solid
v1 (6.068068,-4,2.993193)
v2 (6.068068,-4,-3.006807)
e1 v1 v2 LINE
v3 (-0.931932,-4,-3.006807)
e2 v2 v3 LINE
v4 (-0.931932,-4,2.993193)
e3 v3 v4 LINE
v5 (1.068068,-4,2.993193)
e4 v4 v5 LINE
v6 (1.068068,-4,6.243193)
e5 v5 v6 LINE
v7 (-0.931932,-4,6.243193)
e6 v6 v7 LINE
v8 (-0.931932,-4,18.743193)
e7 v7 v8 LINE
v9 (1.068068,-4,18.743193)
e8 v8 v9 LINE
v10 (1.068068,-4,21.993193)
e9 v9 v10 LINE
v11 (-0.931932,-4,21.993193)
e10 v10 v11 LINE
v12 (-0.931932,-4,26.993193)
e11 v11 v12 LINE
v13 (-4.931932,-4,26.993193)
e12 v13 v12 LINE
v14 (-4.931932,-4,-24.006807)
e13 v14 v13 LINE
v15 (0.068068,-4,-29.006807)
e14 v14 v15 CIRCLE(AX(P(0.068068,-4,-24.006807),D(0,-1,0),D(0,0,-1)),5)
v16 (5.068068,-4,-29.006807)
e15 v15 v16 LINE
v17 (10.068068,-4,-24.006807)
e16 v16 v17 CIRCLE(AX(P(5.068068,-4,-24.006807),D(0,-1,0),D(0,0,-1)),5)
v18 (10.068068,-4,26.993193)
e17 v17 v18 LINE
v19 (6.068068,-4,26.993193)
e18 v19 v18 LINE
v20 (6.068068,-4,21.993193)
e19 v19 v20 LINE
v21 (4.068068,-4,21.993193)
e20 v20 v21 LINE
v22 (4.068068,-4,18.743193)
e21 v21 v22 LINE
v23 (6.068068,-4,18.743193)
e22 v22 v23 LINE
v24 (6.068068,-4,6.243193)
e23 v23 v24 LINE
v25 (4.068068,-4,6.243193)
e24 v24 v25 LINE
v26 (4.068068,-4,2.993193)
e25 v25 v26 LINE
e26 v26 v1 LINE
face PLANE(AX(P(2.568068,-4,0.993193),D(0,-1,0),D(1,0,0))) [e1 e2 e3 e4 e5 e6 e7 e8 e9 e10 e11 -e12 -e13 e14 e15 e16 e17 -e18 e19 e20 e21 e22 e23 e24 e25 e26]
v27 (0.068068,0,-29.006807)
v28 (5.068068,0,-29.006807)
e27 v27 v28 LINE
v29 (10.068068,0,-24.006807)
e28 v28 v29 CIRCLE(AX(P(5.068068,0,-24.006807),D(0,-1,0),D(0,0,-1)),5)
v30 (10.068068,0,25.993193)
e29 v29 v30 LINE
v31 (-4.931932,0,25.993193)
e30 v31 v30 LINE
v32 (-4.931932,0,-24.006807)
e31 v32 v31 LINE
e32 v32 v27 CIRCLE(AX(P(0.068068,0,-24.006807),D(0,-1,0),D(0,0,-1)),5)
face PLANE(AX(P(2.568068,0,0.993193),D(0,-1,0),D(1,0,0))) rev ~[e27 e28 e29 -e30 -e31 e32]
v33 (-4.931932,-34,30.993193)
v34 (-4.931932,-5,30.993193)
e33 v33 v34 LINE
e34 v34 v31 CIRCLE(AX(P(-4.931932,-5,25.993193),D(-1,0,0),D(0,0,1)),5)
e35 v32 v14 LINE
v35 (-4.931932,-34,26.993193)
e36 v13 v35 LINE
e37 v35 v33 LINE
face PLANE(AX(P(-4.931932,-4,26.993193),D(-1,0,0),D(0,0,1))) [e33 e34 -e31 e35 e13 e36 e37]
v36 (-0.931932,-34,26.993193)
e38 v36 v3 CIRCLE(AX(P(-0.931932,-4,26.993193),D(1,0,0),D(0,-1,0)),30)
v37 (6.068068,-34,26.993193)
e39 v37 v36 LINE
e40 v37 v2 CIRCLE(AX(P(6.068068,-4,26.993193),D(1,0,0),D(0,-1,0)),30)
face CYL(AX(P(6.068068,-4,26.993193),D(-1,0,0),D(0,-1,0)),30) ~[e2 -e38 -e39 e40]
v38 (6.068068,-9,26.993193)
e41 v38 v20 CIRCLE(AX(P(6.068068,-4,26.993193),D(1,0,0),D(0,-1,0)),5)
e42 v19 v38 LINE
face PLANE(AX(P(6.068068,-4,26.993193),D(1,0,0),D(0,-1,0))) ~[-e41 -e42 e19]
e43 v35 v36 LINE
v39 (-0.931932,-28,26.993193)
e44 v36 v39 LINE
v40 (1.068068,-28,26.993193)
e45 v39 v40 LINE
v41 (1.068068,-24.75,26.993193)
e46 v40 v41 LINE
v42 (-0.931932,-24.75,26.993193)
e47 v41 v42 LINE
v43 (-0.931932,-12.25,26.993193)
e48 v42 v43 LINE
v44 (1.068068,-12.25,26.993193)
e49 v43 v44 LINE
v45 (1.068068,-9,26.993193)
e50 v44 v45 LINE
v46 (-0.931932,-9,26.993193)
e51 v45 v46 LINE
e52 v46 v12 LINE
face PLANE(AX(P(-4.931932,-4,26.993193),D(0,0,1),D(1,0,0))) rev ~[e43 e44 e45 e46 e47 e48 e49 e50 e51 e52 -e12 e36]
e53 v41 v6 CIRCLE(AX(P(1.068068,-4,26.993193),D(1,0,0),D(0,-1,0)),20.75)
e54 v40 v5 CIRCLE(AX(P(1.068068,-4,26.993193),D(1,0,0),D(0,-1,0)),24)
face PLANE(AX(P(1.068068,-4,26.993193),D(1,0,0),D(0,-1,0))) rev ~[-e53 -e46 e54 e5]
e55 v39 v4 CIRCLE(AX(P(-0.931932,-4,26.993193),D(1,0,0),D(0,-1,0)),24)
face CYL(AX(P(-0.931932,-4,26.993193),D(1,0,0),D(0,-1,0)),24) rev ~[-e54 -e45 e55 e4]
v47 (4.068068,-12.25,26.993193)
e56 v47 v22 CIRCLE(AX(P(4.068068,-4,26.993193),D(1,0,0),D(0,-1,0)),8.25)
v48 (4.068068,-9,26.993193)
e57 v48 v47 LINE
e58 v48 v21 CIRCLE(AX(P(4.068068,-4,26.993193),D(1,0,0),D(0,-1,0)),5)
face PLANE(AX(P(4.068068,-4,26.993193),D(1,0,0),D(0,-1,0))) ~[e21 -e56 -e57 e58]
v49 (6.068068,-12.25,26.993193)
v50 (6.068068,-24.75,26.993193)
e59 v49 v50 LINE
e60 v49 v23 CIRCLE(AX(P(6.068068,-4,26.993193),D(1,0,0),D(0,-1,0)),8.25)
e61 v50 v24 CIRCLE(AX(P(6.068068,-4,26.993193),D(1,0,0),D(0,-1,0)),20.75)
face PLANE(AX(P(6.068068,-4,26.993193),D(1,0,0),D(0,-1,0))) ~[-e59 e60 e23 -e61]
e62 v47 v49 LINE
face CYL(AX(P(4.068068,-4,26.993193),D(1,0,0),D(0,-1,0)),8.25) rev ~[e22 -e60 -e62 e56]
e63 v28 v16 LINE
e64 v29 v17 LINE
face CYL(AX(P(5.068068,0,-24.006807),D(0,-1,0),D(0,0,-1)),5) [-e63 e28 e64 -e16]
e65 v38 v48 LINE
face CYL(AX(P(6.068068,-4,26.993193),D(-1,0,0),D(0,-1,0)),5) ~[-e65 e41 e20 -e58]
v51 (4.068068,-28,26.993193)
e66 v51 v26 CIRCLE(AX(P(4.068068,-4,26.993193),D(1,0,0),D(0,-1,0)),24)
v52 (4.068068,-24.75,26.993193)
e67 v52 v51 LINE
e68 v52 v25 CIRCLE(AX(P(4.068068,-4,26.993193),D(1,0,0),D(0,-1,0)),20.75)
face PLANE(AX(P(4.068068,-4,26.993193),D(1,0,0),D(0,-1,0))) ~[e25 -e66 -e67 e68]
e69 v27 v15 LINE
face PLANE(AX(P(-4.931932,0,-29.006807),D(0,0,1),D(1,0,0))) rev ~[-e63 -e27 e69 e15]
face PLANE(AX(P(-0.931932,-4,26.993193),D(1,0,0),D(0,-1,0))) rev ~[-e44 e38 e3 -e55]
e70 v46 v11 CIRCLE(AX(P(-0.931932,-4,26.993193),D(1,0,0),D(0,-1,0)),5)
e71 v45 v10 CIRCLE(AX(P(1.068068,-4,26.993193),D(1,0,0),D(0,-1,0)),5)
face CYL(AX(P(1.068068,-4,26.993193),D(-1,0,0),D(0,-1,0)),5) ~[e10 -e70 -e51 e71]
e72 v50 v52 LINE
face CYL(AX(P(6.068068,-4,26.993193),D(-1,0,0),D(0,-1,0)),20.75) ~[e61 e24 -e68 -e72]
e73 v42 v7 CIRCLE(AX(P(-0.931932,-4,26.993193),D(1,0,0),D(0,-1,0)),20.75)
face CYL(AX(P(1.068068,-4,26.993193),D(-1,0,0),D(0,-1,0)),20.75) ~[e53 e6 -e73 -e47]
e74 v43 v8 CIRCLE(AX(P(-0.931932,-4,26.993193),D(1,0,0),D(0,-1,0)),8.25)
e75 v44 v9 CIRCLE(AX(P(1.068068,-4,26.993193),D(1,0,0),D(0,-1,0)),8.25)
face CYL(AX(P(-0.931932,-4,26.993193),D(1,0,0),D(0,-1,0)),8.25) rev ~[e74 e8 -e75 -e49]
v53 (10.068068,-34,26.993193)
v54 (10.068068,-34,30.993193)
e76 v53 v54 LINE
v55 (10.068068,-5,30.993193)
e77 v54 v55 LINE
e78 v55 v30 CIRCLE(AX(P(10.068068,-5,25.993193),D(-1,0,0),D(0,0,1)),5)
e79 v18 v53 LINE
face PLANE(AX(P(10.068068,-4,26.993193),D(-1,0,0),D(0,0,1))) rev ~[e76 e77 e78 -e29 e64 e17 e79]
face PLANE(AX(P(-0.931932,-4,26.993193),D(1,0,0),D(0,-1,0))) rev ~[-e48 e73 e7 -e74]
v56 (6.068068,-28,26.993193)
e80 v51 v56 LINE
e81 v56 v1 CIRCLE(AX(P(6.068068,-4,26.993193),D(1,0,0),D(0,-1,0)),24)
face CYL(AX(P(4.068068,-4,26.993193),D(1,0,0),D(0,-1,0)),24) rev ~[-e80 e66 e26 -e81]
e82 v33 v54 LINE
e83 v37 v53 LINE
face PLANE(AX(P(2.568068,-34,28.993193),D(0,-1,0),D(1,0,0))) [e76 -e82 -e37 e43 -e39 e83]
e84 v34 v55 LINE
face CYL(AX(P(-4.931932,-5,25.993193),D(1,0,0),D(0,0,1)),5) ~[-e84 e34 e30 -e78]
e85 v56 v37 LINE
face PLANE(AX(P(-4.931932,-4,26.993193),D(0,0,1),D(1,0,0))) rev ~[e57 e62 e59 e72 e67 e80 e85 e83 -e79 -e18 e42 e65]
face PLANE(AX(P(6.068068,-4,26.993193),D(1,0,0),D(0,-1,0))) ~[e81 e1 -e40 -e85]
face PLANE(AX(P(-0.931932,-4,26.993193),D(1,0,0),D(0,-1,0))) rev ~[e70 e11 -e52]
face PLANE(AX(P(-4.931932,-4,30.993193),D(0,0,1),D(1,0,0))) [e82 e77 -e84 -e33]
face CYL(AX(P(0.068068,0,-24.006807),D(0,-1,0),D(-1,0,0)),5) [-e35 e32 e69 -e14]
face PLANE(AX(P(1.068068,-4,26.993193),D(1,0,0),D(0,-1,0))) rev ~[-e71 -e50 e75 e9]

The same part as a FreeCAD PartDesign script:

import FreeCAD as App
import Part
import Sketcher


def edges_at(feature, points):
    """Names of the edges that pass closest to the given points."""
    edges = feature.Shape.Edges
    near = lambda p: min(range(len(edges)), key=lambda i: edges[i].distToShape(Part.Vertex(*p))[0])
    return sorted({f"Edge{near(p) + 1}" for p in points})


def add_polygon(sketch, points):
    """Adds a closed chain of lines whose ends are joined by coincident constraints."""
    first, n = sketch.GeometryCount, len(points)
    for a, b in zip(points, points[1:] + points[:1]):
        sketch.addGeometry(Part.LineSegment(App.Vector(*a, 0), App.Vector(*b, 0)), False)
    for i in range(n):
        sketch.addConstraint(Sketcher.Constraint("Coincident", first + i, 2, first + (i + 1) % n, 1))

doc = App.newDocument("Part")
body = doc.addObject("PartDesign::Body", "Body")

sketch1 = body.newObject("Sketcher::SketchObject", "Sketch")
sketch1.AttachmentSupport = (doc.getObject("XZ_Plane"), [""])
sketch1.MapMode = "FlatFace"
add_polygon(sketch1, [(-5, 31), (-5, -29), (10, -29), (10, 31)])
sketch1.addConstraint([
    Sketcher.Constraint("Vertical", 0),
    Sketcher.Constraint("Horizontal", 1),
    Sketcher.Constraint("Vertical", 2),
    Sketcher.Constraint("Horizontal", 3),
    Sketcher.Constraint("DistanceX", 1, 1, 1, 2, 15.0),
    Sketcher.Constraint("DistanceY", 0, 2, 0, 1, 60.0),
    Sketcher.Constraint("DistanceX", 0, 2, -1, 1, 4.931932),
    Sketcher.Constraint("DistanceY", 0, 2, -1, 1, 29.006807),
])
pad1 = body.newObject("PartDesign::Pad", "Pad")
pad1.Profile = sketch1
pad1.Length = 4

sketch2 = body.newObject("Sketcher::SketchObject", "Sketch001")
sketch2.AttachmentSupport = (doc.getObject("XZ_Plane"), [""])
sketch2.MapMode = "FlatFace"
sketch2.AttachmentOffset = App.Placement(App.Vector(0, 0, 4), App.Rotation())
add_polygon(sketch2, [(-4.9, 31), (-4.9, 27), (10.1, 27), (10.1, 31)])
sketch2.addConstraint([
    Sketcher.Constraint("Vertical", 0),
    Sketcher.Constraint("Horizontal", 1),
    Sketcher.Constraint("Vertical", 2),
    Sketcher.Constraint("Horizontal", 3),
    Sketcher.Constraint("DistanceX", 1, 1, 1, 2, 15.0),
    Sketcher.Constraint("DistanceY", 0, 2, 0, 1, 4.0),
    Sketcher.Constraint("DistanceX", 0, 2, -1, 1, 4.931932),
    Sketcher.Constraint("DistanceY", -1, 1, 0, 2, 26.993193),
])
pad2 = body.newObject("PartDesign::Pad", "Pad001")
pad2.Profile = sketch2
pad2.Length = 30

sketch3 = body.newObject("Sketcher::SketchObject", "Sketch002")
sketch3.AttachmentSupport = (doc.getObject("XY_Plane"), [""])
sketch3.MapMode = "FlatFace"
sketch3.AttachmentOffset = App.Placement(App.Vector(0, 0, 26.993193), App.Rotation())
add_polygon(sketch3, [(6.1, -28), (6.1, -34), (-0.9, -34), (-0.9, -28), (1.1, -28), (1.1, -24.8), (-0.9, -24.8), (-0.9, -12.2), (1.1, -12.2), (1.1, -9), (-0.9, -9), (-0.9, -4), (6.1, -4), (6.1, -9), (4.1, -9), (4.1, -12.2), (6.1, -12.2), (6.1, -24.8), (4.1, -24.8), (4.1, -28)])
sketch3.addGeometry(Part.LineSegment(App.Vector(6.1, -4, 0), App.Vector(-0.9, -4, 0)), True)
sketch3.addConstraint([
    Sketcher.Constraint("Vertical", 0),
    Sketcher.Constraint("Horizontal", 1),
    Sketcher.Constraint("Vertical", 2),
    Sketcher.Constraint("Horizontal", 3),
    Sketcher.Constraint("Vertical", 4),
    Sketcher.Constraint("Horizontal", 5),
    Sketcher.Constraint("Vertical", 6),
    Sketcher.Constraint("Horizontal", 7),
    Sketcher.Constraint("Vertical", 8),
    Sketcher.Constraint("Horizontal", 9),
    Sketcher.Constraint("Vertical", 10),
    Sketcher.Constraint("Horizontal", 11),
    Sketcher.Constraint("Vertical", 12),
    Sketcher.Constraint("Horizontal", 13),
    Sketcher.Constraint("Vertical", 14),
    Sketcher.Constraint("Horizontal", 15),
    Sketcher.Constraint("Vertical", 16),
    Sketcher.Constraint("Horizontal", 17),
    Sketcher.Constraint("Vertical", 18),
    Sketcher.Constraint("Horizontal", 19),
    Sketcher.Constraint("Horizontal", 20),
    Sketcher.Constraint("Coincident", 20, 1, 11, 2),
    Sketcher.Constraint("Horizontal", 9, 2, 12, 2),
    Sketcher.Constraint("Horizontal", 7, 2, 14, 2),
    Sketcher.Constraint("Horizontal", 5, 2, 16, 2),
    Sketcher.Constraint("Horizontal", 3, 2, 18, 2),
    Sketcher.Constraint("Vertical", 2, 2, 5, 2),
    Sketcher.Constraint("Vertical", 4, 2, 7, 2),
    Sketcher.Constraint("Vertical", 6, 2, 9, 2),
    Sketcher.Constraint("Vertical", 0, 2, 11, 2),
    Sketcher.Constraint("Vertical", 12, 2, 15, 2),
    Sketcher.Constraint("Vertical", 14, 2, 17, 2),
    Sketcher.Constraint("Vertical", 9, 2, 20, 2),
    Sketcher.Constraint("Equal", 9, 13),
    Sketcher.Constraint("Equal", 4, 8),
    Sketcher.Constraint("DistanceX", 1, 2, 1, 1, 7.0),
    Sketcher.Constraint("DistanceX", 3, 1, 3, 2, 2.0),
    Sketcher.Constraint("DistanceY", 0, 2, 0, 1, 6.0),
    Sketcher.Constraint("DistanceY", 10, 1, 10, 2, 5.0),
    Sketcher.Constraint("DistanceY", 6, 1, 6, 2, 12.5),
    Sketcher.Constraint("DistanceY", 0, 2, -1, 1, 34.0),
    Sketcher.Constraint("DistanceY", 8, 2, -1, 1, 9.0),
    Sketcher.Constraint("DistanceX", -1, 1, 0, 2, 6.068068),
])
revolution = body.newObject("PartDesign::Revolution", "Revolution")
revolution.Profile = sketch3
revolution.ReferenceAxis = (sketch3, ["Axis0"])
revolution.Angle = 90
revolution.Reversed = True
doc.recompute()

fillet = body.newObject("PartDesign::Fillet", "Fillet")
fillet.Base = (revolution, edges_at(revolution, [(2.568, 0, 30.993)]))
fillet.Radius = 5
doc.recompute()

fillet2 = body.newObject("PartDesign::Fillet", "Fillet001")
fillet2.Base = (fillet, edges_at(fillet, [(10.068, -2, -29.007), (-4.932, -2, -29.007)]))
fillet2.Radius = 5

doc.recompute()
